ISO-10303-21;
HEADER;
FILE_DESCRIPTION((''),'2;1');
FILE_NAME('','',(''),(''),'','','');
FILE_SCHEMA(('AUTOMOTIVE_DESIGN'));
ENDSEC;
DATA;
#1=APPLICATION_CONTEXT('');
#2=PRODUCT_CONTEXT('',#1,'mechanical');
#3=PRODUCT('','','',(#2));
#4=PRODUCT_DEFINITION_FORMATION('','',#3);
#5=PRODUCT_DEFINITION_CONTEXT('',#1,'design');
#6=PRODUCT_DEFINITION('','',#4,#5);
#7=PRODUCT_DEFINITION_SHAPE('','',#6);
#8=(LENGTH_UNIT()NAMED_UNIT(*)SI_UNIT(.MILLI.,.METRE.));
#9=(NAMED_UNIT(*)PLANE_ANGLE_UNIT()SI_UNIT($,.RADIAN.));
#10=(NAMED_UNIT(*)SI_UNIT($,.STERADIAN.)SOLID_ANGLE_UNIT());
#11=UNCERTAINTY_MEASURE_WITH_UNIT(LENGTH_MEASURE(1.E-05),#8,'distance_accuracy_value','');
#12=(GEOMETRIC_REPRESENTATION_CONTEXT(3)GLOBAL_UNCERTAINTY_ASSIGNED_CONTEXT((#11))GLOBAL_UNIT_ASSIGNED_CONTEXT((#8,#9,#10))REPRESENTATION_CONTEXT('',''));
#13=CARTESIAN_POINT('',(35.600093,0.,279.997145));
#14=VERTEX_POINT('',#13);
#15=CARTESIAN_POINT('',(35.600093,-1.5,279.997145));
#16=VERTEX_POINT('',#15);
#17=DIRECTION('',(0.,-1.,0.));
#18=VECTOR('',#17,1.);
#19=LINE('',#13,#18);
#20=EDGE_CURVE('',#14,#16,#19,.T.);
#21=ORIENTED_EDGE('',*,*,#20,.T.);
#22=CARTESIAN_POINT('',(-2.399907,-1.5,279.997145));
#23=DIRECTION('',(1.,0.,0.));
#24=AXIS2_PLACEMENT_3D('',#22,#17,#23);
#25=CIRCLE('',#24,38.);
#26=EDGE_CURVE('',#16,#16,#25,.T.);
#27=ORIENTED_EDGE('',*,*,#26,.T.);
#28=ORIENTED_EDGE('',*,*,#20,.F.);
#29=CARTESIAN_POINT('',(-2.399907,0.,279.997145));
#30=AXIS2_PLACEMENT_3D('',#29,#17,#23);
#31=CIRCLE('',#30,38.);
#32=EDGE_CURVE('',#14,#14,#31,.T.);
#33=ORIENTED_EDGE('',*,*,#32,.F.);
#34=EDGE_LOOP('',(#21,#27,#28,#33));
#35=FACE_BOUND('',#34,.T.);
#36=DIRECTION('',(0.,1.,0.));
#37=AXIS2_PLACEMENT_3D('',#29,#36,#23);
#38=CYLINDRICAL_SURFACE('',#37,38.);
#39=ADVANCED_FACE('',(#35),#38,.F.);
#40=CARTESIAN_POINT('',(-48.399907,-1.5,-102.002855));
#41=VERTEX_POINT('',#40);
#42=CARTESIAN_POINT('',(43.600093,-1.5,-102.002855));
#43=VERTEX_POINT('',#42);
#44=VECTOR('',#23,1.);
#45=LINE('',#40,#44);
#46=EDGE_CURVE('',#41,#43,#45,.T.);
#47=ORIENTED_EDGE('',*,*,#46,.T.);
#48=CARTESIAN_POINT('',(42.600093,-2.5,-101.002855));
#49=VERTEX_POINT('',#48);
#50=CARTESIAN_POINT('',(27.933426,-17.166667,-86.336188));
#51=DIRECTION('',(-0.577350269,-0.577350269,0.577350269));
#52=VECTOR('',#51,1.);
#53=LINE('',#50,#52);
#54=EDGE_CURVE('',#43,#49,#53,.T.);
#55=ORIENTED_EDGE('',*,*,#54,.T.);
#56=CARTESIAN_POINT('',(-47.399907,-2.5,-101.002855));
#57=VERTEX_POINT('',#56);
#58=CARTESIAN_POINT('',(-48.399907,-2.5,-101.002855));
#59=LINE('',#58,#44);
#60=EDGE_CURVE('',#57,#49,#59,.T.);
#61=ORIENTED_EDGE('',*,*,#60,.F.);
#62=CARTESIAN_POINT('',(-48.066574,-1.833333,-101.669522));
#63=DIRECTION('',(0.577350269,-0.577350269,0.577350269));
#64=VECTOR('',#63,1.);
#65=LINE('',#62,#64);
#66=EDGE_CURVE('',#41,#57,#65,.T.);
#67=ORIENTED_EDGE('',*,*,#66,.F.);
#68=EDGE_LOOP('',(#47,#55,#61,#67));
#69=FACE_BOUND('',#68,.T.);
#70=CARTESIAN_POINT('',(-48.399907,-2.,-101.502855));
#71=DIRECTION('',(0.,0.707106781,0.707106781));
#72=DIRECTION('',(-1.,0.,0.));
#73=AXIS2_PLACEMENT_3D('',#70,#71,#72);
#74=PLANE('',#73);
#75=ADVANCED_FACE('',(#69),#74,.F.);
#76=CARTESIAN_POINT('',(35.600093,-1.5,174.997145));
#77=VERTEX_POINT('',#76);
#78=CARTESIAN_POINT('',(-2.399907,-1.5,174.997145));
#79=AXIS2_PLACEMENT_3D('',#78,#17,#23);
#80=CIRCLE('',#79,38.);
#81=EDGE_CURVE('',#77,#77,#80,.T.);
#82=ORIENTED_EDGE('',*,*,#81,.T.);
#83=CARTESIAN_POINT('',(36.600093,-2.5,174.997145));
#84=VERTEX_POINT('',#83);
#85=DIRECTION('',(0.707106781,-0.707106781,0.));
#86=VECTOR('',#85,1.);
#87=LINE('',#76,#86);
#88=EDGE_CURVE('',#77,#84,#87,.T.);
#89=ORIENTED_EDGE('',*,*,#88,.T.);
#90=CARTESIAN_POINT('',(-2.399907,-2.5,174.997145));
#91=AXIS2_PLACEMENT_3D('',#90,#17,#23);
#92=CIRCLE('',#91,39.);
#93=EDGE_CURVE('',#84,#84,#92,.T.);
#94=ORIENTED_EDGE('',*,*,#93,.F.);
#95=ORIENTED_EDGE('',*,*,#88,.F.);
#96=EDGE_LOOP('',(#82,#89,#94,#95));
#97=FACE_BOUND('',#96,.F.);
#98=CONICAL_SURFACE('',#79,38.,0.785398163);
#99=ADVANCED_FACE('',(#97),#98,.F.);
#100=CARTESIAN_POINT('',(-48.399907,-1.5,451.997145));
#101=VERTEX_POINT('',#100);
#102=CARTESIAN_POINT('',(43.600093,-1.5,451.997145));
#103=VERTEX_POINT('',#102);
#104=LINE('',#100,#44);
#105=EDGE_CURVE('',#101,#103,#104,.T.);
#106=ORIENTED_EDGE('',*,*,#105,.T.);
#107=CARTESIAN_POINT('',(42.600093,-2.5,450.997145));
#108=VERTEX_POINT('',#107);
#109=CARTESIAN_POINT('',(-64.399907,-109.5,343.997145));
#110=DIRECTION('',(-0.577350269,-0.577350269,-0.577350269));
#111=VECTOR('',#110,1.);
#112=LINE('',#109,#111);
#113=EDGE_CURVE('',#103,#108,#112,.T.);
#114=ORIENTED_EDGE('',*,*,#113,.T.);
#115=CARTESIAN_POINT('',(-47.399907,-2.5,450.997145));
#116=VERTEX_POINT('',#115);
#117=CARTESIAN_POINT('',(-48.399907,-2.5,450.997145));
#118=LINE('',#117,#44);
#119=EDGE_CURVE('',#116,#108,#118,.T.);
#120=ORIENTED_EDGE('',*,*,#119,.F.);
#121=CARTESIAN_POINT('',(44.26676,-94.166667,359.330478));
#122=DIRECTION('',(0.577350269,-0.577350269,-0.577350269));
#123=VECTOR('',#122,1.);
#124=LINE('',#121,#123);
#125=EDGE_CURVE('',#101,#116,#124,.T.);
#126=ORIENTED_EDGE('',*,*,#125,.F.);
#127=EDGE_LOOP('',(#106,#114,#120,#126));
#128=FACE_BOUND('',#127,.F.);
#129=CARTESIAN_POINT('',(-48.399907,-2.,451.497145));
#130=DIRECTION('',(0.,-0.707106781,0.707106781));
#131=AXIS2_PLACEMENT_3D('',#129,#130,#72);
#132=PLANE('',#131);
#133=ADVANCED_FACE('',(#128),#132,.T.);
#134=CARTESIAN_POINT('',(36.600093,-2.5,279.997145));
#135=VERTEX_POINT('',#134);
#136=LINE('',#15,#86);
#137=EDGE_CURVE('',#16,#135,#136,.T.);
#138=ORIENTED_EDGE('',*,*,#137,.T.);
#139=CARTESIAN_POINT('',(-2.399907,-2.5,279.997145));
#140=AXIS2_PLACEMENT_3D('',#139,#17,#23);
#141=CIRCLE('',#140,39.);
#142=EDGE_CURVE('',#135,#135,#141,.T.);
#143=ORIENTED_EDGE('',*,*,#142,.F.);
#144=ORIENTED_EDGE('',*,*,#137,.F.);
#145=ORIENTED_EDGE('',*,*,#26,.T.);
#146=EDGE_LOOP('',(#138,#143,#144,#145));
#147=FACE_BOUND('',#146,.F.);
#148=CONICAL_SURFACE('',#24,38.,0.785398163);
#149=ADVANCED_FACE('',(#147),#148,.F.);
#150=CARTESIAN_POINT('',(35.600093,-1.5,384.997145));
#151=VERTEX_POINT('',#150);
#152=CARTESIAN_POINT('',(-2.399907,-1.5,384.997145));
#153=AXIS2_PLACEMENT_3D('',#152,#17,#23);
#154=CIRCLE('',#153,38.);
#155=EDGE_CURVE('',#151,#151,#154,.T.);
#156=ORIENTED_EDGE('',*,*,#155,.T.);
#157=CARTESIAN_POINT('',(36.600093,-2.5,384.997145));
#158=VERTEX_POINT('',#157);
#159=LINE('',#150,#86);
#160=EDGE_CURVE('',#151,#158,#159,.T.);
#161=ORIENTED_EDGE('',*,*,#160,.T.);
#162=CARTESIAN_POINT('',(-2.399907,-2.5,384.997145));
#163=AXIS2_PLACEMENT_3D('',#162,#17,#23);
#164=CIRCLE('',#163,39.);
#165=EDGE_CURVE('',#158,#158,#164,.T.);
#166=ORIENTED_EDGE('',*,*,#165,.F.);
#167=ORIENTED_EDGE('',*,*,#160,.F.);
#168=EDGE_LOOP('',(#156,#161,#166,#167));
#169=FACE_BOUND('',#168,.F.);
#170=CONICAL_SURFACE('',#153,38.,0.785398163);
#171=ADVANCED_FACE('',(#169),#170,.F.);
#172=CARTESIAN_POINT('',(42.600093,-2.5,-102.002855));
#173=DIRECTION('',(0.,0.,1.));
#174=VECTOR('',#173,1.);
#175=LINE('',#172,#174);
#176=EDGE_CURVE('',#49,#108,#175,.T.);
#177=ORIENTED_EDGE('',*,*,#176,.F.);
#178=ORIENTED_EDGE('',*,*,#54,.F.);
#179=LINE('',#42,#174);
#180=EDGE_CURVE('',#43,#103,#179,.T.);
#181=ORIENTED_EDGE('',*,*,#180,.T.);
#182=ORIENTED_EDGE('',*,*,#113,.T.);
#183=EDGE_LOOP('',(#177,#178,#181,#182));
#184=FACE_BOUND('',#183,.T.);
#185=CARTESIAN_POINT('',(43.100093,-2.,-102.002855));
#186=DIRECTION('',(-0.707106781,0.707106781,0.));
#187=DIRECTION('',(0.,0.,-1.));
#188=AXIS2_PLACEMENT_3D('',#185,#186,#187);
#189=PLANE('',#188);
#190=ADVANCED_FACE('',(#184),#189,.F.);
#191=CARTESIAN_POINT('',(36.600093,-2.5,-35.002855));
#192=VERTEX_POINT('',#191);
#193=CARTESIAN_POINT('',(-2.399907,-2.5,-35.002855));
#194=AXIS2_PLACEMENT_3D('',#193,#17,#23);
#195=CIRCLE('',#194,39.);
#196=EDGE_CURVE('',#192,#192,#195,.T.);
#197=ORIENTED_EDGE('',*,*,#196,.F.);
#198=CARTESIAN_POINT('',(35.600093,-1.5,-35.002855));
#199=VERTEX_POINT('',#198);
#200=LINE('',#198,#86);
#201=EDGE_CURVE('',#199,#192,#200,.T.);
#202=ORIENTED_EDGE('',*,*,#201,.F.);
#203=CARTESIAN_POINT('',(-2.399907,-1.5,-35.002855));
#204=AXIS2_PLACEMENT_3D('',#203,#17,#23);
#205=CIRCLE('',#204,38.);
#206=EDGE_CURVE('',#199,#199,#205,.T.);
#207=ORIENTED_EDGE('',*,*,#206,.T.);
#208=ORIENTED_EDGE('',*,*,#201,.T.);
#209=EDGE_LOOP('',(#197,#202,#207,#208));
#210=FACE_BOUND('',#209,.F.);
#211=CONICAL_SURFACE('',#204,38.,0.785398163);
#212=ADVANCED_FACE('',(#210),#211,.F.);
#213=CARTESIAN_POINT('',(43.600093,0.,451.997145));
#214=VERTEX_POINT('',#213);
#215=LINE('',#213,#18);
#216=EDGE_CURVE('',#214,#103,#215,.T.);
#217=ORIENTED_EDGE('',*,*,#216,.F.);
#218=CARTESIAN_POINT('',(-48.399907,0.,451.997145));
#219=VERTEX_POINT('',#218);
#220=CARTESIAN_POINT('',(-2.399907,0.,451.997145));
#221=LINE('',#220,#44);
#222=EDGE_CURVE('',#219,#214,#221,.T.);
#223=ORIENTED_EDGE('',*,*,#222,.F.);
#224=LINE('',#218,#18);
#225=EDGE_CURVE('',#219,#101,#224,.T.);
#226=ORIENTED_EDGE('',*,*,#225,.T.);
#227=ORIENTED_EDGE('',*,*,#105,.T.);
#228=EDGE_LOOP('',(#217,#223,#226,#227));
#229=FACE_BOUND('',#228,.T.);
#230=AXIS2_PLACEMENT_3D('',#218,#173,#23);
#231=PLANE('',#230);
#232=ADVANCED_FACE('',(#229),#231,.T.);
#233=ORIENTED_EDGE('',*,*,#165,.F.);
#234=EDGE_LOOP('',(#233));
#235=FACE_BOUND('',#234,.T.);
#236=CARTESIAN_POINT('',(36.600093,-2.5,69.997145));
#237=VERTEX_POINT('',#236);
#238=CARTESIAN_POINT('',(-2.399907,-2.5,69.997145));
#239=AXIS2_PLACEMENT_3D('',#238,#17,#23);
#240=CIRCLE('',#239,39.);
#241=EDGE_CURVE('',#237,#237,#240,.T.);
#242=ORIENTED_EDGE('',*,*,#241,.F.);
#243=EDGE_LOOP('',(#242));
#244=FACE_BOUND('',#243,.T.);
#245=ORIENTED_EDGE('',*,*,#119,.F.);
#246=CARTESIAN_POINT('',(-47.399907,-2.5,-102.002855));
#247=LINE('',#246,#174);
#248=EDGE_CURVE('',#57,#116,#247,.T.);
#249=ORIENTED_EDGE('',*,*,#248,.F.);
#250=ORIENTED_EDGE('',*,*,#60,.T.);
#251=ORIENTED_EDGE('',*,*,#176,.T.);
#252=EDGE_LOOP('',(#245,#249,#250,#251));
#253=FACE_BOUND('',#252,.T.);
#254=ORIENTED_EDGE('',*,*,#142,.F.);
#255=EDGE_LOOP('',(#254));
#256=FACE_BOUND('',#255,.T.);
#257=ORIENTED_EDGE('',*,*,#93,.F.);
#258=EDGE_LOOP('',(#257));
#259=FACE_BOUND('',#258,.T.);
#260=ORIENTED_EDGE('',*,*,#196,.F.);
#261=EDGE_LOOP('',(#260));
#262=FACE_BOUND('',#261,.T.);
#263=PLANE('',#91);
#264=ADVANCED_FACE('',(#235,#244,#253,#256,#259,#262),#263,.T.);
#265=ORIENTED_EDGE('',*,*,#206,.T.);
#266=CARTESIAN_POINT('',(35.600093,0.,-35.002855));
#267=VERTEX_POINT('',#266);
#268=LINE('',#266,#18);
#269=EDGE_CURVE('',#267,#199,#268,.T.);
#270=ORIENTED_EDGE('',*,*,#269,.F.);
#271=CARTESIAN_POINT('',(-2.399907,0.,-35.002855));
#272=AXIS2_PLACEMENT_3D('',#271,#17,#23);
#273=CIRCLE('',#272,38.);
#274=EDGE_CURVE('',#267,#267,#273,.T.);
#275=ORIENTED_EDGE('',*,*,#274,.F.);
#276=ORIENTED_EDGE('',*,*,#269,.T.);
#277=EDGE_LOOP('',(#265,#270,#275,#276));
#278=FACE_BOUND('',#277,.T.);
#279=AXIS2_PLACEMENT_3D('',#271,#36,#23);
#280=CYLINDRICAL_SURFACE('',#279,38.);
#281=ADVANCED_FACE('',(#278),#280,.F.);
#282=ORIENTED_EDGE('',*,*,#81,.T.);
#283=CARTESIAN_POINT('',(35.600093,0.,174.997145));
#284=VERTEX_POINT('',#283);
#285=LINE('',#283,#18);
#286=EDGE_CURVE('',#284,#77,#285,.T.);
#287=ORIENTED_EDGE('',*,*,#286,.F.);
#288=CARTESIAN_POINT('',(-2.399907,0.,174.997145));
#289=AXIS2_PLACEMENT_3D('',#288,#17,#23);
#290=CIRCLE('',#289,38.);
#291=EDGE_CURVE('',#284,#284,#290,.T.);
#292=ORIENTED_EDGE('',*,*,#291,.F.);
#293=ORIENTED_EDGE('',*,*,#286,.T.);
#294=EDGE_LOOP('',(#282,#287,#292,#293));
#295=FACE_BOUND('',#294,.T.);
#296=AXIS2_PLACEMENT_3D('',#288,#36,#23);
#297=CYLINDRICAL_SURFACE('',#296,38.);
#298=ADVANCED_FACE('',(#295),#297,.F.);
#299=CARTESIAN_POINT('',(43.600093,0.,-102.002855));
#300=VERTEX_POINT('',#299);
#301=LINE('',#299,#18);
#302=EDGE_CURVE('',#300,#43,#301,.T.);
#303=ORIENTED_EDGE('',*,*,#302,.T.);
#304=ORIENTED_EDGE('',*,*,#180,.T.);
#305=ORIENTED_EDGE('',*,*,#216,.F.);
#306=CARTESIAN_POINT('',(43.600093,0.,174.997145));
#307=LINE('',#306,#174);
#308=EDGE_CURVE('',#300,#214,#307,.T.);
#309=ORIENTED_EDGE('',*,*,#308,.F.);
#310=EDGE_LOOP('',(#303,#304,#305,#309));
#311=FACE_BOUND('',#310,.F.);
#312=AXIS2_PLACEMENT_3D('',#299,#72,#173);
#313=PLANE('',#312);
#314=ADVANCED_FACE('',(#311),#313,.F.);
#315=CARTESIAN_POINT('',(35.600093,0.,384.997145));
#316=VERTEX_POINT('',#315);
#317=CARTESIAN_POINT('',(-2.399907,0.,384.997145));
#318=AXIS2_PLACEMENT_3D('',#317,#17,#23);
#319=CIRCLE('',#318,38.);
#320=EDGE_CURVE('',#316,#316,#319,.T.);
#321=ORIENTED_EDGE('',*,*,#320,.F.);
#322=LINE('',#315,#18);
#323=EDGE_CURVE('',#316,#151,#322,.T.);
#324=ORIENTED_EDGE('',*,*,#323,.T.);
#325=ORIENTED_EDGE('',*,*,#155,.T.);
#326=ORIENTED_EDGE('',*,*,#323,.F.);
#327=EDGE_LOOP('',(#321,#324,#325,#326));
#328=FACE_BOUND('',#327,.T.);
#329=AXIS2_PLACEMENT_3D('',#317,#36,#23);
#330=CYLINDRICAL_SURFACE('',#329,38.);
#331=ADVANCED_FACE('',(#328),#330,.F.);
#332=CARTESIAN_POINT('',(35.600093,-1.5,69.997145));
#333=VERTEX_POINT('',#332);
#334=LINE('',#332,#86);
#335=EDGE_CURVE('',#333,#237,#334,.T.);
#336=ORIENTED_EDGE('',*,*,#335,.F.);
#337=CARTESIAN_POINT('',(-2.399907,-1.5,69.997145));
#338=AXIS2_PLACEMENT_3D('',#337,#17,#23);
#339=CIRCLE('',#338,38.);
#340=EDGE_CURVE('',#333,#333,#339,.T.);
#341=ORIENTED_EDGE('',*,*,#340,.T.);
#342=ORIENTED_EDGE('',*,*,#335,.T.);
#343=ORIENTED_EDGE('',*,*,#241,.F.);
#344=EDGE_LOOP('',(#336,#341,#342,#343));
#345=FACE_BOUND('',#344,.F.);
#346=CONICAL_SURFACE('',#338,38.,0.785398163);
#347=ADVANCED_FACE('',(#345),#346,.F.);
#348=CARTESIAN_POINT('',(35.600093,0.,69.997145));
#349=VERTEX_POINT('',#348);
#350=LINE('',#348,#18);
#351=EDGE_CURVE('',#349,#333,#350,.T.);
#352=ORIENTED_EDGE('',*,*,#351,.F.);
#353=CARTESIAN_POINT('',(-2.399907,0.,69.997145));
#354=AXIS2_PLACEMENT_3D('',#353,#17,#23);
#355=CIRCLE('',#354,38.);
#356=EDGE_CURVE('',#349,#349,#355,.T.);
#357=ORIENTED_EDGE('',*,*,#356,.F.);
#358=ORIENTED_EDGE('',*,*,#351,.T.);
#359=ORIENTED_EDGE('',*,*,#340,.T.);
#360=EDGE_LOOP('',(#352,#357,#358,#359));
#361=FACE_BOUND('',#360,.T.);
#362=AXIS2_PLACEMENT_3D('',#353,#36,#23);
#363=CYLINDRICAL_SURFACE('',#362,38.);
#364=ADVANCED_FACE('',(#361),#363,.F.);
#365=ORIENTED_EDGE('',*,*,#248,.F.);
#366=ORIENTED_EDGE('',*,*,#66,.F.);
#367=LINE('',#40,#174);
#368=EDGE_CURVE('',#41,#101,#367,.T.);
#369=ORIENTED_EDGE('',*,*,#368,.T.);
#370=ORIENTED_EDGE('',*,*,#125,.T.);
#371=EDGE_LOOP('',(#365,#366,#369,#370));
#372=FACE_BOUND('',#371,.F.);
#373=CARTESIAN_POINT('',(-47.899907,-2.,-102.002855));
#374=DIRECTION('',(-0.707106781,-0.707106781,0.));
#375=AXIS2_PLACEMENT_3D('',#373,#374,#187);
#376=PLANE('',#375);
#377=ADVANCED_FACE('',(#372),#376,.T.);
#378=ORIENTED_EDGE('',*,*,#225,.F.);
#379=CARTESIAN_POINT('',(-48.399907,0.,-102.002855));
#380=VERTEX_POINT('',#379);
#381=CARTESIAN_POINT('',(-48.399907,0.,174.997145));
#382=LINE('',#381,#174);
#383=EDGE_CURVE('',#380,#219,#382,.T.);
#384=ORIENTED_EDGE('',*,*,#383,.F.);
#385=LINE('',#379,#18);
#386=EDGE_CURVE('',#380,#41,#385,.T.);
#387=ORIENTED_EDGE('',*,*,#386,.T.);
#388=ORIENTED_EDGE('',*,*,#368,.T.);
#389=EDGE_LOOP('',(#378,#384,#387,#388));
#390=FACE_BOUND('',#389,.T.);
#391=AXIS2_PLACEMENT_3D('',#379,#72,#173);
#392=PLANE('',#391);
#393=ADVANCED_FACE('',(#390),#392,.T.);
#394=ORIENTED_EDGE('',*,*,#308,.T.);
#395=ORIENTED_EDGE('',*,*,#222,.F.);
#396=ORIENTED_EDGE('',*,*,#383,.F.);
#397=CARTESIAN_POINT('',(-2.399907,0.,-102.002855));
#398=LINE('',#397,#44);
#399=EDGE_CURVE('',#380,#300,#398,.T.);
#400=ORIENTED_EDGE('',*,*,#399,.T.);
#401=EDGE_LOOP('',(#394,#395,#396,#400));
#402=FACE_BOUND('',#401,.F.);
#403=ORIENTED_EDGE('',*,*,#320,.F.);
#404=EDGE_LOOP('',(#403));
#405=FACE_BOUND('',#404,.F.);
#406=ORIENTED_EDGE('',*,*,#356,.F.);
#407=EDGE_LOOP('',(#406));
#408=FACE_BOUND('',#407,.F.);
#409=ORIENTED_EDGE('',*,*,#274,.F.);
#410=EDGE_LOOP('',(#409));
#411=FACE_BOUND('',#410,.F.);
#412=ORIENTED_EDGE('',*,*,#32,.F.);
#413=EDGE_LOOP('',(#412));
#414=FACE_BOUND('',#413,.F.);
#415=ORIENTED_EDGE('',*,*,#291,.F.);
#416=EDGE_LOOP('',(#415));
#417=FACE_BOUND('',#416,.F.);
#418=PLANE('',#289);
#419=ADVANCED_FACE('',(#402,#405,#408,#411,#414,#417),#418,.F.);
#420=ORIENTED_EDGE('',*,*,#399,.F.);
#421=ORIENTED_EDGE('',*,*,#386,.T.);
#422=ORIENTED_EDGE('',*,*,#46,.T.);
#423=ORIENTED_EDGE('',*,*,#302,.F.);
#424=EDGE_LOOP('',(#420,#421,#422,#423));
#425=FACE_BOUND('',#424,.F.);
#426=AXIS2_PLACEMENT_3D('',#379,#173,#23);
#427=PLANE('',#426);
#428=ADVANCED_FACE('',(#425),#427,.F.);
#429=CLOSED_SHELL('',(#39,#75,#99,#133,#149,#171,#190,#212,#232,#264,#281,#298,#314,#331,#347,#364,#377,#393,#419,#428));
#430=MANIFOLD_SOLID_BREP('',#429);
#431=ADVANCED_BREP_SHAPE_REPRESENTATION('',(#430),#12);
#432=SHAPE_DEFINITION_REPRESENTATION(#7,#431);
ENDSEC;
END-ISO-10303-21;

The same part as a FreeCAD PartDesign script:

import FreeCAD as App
import Part
import Sketcher
from FreeCAD import Vector


def edges_at(feature, points):
    """Names of the edges that pass closest to the given points."""
    edges = feature.Shape.Edges
    near = lambda p: min(range(len(edges)), key=lambda i: edges[i].distToShape(Part.Vertex(*p))[0])
    return sorted({f"Edge{near(p) + 1}" for p in points})


def add_polygon(sketch, points):
    """Adds a closed chain of lines whose ends are joined by coincident constraints."""
    first, n = sketch.GeometryCount, len(points)
    for a, b in zip(points, points[1:] + points[:1]):
        sketch.addGeometry(Part.LineSegment(App.Vector(*a, 0), App.Vector(*b, 0)), False)
    for i in range(n):
        sketch.addConstraint(Sketcher.Constraint("Coincident", first + i, 2, first + (i + 1) % n, 1))

doc = App.newDocument("Part")
params = doc.addObject("Spreadsheet::Sheet", "Params")
for row, (alias, value) in enumerate([
    ("sketch1_diameter", "76 mm"),
    ("sketch1_width", "92 mm"),
    ("sketch1_height", "554 mm"),
    ("pad1_length", "2.5 mm"),
    ("chamfer_size", "1 mm"),
], start=1):
    params.set(f"A{row}", alias)
    params.set(f"B{row}", "=" + value)
    params.setAlias(f"B{row}", alias)

body = doc.addObject("PartDesign::Body", "Body")

sketch1 = doc.addObject("Sketcher::SketchObject", "Sketch")
body.addObject(sketch1)
sketch1.AttachmentSupport = (doc.XZ_Plane, [""])
sketch1.MapMode = "FlatFace"
add_polygon(sketch1, [(-48, 452), (-48, -102), (44, -102), (44, 452)])
sketch1.addGeometry(Part.Circle(Vector(-2, -35, 0), Vector(0, 0, 1), 38), False)
sketch1.addGeometry(Part.Circle(Vector(-2, 70, 0), Vector(0, 0, 1), 38), False)
sketch1.addGeometry(Part.Circle(Vector(-2, 175, 0), Vector(0, 0, 1), 38), False)
sketch1.addGeometry(Part.Circle(Vector(-2, 280, 0), Vector(0, 0, 1), 38), False)
sketch1.addGeometry(Part.Circle(Vector(-2, 385, 0), Vector(0, 0, 1), 38), False)
sketch1.addConstraint([
    Sketcher.Constraint("Vertical", 0),
    Sketcher.Constraint("Horizontal", 1),
    Sketcher.Constraint("Vertical", 2),
    Sketcher.Constraint("Horizontal", 3),
    Sketcher.Constraint("Equal", 4, 5),
    Sketcher.Constraint("Equal", 5, 6),
    Sketcher.Constraint("Equal", 6, 7),
    Sketcher.Constraint("Equal", 7, 8),
    Sketcher.Constraint("Vertical", 4, 3, 5, 3),
    Sketcher.Constraint("Vertical", 5, 3, 6, 3),
    Sketcher.Constraint("Vertical", 6, 3, 7, 3),
    Sketcher.Constraint("Vertical", 7, 3, 8, 3),
    Sketcher.Constraint("Diameter", 4, 76.0),
    Sketcher.Constraint("DistanceX", 1, 1, 1, 2, 92.0),
    Sketcher.Constraint("DistanceY", 0, 2, 0, 1, 554.0),
    Sketcher.Constraint("DistanceY", 4, 3, 5, 3, 105.0),
    Sketcher.Constraint("DistanceY", 5, 3, 6, 3, 105.0),
    Sketcher.Constraint("DistanceY", 6, 3, 7, 3, 105.0),
    Sketcher.Constraint("DistanceY", 7, 3, 8, 3, 105.0),
    Sketcher.Constraint("DistanceX", 0, 2, 4, 3, 46.0),
    Sketcher.Constraint("DistanceY", 0, 2, 4, 3, 67.0),
    Sketcher.Constraint("DistanceX", 4, 3, -1, 1, 2.399907),
    Sketcher.Constraint("DistanceY", 4, 3, -1, 1, 35.002855),
])
sketch1.setExpression("Constraints[16]", "Params.sketch1_diameter")
sketch1.setExpression("Constraints[17]", "Params.sketch1_width")
sketch1.setExpression("Constraints[18]", "Params.sketch1_height")
pad1 = doc.addObject("PartDesign::Pad", "Pad")
body.addObject(pad1)
pad1.Profile = sketch1
pad1.setExpression("Length", "Params.pad1_length")
doc.recompute()

chamfer = doc.addObject("PartDesign::Chamfer", "Chamfer")
body.addObject(chamfer)
chamfer.Base = (pad1, edges_at(pad1, [
    (-2.4, -2.5, -102.003),
    (43.6, -2.5, 174.997),
    (-2.4, -2.5, 451.997),
    (-48.4, -2.5, 174.997),
    (-40.4, -2.5, -35.003),
    (-40.4, -2.5, 69.997),
    (-40.4, -2.5, 174.997),
    (-40.4, -2.5, 279.997),
    (-40.4, -2.5, 384.997),
]))
chamfer.setExpression("Size", "Params.chamfer_size")

doc.recompute()
